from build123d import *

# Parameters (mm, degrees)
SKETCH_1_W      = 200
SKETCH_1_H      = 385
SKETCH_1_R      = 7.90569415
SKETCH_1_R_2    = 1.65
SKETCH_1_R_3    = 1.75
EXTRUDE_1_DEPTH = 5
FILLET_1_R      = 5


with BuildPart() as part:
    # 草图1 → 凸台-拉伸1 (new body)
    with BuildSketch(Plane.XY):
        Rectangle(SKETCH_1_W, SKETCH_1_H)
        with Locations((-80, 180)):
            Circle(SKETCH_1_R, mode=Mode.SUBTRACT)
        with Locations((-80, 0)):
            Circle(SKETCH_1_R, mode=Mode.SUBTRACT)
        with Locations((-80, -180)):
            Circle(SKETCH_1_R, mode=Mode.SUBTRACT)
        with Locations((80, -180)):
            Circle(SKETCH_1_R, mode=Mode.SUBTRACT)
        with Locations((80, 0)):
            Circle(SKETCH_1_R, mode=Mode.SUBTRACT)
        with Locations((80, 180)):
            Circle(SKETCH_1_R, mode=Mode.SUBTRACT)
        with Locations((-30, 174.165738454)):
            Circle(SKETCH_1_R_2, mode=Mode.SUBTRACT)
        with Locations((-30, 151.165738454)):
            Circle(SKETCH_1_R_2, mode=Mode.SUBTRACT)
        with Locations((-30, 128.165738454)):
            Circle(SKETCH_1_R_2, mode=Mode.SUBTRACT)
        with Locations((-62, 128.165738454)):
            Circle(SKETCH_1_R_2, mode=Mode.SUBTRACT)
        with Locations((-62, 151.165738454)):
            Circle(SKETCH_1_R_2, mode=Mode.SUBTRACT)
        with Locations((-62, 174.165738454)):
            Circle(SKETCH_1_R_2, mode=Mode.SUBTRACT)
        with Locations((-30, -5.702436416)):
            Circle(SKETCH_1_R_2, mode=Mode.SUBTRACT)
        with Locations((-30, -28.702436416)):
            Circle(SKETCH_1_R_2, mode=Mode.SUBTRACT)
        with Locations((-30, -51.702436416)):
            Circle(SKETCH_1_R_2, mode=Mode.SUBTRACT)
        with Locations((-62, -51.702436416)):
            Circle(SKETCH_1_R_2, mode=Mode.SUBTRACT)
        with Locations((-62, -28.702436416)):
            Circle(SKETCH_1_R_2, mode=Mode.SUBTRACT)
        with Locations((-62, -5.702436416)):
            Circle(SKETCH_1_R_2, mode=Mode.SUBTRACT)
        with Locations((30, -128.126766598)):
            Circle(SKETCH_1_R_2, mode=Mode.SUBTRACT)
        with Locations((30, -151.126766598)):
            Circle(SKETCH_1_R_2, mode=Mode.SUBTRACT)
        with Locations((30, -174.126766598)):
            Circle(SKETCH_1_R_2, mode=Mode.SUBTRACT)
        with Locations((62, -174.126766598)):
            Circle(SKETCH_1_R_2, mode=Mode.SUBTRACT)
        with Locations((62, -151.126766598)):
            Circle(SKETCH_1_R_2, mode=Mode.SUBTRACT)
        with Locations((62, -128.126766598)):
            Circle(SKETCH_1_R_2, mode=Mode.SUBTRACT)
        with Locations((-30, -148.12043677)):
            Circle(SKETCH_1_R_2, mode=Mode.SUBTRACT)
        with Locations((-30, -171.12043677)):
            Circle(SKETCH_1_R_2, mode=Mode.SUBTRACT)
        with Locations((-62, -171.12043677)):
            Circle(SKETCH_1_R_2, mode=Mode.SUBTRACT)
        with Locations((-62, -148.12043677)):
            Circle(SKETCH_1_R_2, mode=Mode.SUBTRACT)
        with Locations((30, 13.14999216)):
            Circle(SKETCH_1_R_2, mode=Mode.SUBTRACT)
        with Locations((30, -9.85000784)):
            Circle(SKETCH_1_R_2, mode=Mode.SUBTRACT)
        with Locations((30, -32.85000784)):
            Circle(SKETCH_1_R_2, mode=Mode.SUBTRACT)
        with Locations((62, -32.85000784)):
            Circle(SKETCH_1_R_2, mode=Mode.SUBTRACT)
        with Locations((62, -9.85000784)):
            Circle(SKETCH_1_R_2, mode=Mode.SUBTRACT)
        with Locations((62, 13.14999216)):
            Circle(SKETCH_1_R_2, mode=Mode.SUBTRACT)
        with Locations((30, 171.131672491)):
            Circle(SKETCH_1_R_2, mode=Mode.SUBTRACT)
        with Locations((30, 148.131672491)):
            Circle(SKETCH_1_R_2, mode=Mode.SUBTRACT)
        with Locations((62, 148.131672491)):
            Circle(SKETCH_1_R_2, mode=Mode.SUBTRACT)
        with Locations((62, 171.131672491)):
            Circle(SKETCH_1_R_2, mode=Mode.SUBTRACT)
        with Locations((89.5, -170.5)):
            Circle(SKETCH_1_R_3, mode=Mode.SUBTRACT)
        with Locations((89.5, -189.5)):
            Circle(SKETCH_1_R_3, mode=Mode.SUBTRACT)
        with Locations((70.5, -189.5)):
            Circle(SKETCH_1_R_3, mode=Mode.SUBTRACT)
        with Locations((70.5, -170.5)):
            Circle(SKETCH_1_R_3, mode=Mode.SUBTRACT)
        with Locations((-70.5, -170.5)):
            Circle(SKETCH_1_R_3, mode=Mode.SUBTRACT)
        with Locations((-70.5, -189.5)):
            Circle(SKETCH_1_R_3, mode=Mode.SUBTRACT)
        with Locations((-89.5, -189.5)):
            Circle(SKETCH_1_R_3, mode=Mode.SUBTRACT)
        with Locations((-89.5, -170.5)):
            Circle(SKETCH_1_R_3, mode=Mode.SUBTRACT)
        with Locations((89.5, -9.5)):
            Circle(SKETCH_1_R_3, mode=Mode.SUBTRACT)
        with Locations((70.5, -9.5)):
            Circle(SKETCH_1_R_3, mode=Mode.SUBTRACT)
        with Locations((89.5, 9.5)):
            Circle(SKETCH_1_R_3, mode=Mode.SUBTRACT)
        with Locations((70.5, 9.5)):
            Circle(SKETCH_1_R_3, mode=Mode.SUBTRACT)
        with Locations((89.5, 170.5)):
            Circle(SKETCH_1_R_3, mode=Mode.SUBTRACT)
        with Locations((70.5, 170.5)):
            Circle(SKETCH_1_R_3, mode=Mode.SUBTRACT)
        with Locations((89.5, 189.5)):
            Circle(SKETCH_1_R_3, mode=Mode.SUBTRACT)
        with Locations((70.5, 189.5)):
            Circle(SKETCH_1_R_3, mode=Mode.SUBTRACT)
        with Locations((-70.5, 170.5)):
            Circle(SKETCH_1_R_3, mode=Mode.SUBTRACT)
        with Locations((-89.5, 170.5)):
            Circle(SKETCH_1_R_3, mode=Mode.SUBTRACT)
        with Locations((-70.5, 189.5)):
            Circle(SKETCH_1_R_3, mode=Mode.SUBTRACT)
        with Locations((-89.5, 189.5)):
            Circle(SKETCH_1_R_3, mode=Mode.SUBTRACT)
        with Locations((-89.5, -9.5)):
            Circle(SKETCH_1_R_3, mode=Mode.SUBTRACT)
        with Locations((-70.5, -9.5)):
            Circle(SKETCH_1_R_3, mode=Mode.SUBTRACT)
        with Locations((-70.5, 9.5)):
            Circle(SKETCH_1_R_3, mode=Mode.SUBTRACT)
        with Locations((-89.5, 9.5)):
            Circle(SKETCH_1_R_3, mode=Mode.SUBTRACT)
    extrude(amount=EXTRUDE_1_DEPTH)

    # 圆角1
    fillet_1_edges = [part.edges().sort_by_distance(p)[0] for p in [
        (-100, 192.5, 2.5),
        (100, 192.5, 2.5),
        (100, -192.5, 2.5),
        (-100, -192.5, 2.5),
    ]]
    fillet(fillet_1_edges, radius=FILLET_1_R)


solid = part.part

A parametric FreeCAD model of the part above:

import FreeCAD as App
import Part
import Sketcher

V = App.Vector
Q = App.Units.Quantity


def edges_at(feature, points):
    """Names of the edges that pass closest to the given points."""
    edges = feature.Shape.Edges
    near = lambda p: min(range(len(edges)), key=lambda i: edges[i].distToShape(Part.Vertex(*p))[0])
    return sorted({f"Edge{near(p) + 1}" for p in points})


def add_polygon(sketch, points):
    """Adds a closed chain of lines whose ends are joined by coincident constraints."""
    first, n = sketch.GeometryCount, len(points)
    for a, b in zip(points, points[1:] + points[:1]):
        sketch.addGeometry(Part.LineSegment(App.Vector(*a, 0), App.Vector(*b, 0)), False)
    for i in range(n):
        sketch.addConstraint(Sketcher.Constraint("Coincident", first + i, 2, first + (i + 1) % n, 1))

doc = App.newDocument("Part")
params = doc.addObject("Spreadsheet::Sheet", "Params")
for row, (alias, value) in enumerate([
    ("sketch1_diameter", "3.5 mm"),
    ("sketch1_diameter2", "3.3 mm"),
    ("sketch1_width", "200 mm"),
    ("sketch1_height", "385 mm"),
    ("pad1_length", "5 mm"),
    ("fillet_radius", "5 mm"),
], start=1):
    params.set(f"A{row}", alias)
    params.set(f"B{row}", "=" + value)
    params.setAlias(f"B{row}", alias)

body = doc.addObject("PartDesign::Body", "Body")

# Sketch on XY plane
sketch1 = doc.addObject("Sketcher::SketchObject", "Sketch")
body.addObject(sketch1)
sketch1.AttachmentSupport = (doc.XY_Plane, [""])
sketch1.MapMode = "FlatFace"
add_polygon(sketch1, [(-100, 192.5), (-100, -192.5), (100, -192.5), (100, 192.5)])  # lines 0-3
sketch1.addGeometry(Part.Circle(V(-89.5, -189.5, 0), V(0, 0, 1), 1.8), False)  # 4
sketch1.addGeometry(Part.Circle(V(-80, -180, 0), V(0, 0, 1), 7.9), False)  # 5
sketch1.addGeometry(Part.Circle(V(-89.5, -170.5, 0), V(0, 0, 1), 1.8), False)  # 6
sketch1.addGeometry(Part.Circle(V(-70.5, -189.5, 0), V(0, 0, 1), 1.8), False)  # 7
sketch1.addGeometry(Part.Circle(V(-70.5, -170.5, 0), V(0, 0, 1), 1.8), False)  # 8
sketch1.addGeometry(Part.Circle(V(-62, -171.1, 0), V(0, 0, 1), 1.6), False)  # 9
sketch1.addGeometry(Part.Circle(V(-62, -148.1, 0), V(0, 0, 1), 1.6), False)  # 10
sketch1.addGeometry(Part.Circle(V(-30, -171.1, 0), V(0, 0, 1), 1.6), False)  # 11
sketch1.addGeometry(Part.Circle(V(-30, -148.1, 0), V(0, 0, 1), 1.6), False)  # 12
sketch1.addGeometry(Part.Circle(V(-62, -51.7, 0), V(0, 0, 1), 1.6), False)  # 13
sketch1.addGeometry(Part.Circle(V(-89.5, -9.5, 0), V(0, 0, 1), 1.8), False)  # 14
sketch1.addGeometry(Part.Circle(V(-80, 0, 0), V(0, 0, 1), 7.9), False)  # 15
sketch1.addGeometry(Part.Circle(V(-70.5, -9.5, 0), V(0, 0, 1), 1.8), False)  # 16
sketch1.addGeometry(Part.Circle(V(-62, -28.7, 0), V(0, 0, 1), 1.6), False)  # 17
sketch1.addGeometry(Part.Circle(V(-62, -5.7, 0), V(0, 0, 1), 1.6), False)  # 18
sketch1.addGeometry(Part.Circle(V(-30, -51.7, 0), V(0, 0, 1), 1.6), False)  # 19
sketch1.addGeometry(Part.Circle(V(-30, -28.7, 0), V(0, 0, 1), 1.6), False)  # 20
sketch1.addGeometry(Part.Circle(V(-30, -5.7, 0), V(0, 0, 1), 1.6), False)  # 21
sketch1.addGeometry(Part.Circle(V(30, -174.1, 0), V(0, 0, 1), 1.6), False)  # 22
sketch1.addGeometry(Part.Circle(V(30, -151.1, 0), V(0, 0, 1), 1.6), False)  # 23
sketch1.addGeometry(Part.Circle(V(30, -128.1, 0), V(0, 0, 1), 1.6), False)  # 24
sketch1.addGeometry(Part.Circle(V(62, -174.1, 0), V(0, 0, 1), 1.6), False)  # 25
sketch1.addGeometry(Part.Circle(V(62, -151.1, 0), V(0, 0, 1), 1.6), False)  # 26
sketch1.addGeometry(Part.Circle(V(70.5, -189.5, 0), V(0, 0, 1), 1.8), False)  # 27
sketch1.addGeometry(Part.Circle(V(70.5, -170.5, 0), V(0, 0, 1), 1.8), False)  # 28
sketch1.addGeometry(Part.Circle(V(80, -180, 0), V(0, 0, 1), 7.9), False)  # 29
sketch1.addGeometry(Part.Circle(V(89.5, -189.5, 0), V(0, 0, 1), 1.8), False)  # 30
sketch1.addGeometry(Part.Circle(V(89.5, -170.5, 0), V(0, 0, 1), 1.8), False)  # 31
sketch1.addGeometry(Part.Circle(V(62, -128.1, 0), V(0, 0, 1), 1.6), False)  # 32
sketch1.addGeometry(Part.Circle(V(30, -32.9, 0), V(0, 0, 1), 1.6), False)  # 33
sketch1.addGeometry(Part.Circle(V(30, -9.9, 0), V(0, 0, 1), 1.6), False)  # 34
sketch1.addGeometry(Part.Circle(V(62, -32.9, 0), V(0, 0, 1), 1.6), False)  # 35
sketch1.addGeometry(Part.Circle(V(62, -9.9, 0), V(0, 0, 1), 1.6), False)  # 36
sketch1.addGeometry(Part.Circle(V(70.5, -9.5, 0), V(0, 0, 1), 1.8), False)  # 37
sketch1.addGeometry(Part.Circle(V(80, 0, 0), V(0, 0, 1), 7.9), False)  # 38
sketch1.addGeometry(Part.Circle(V(89.5, -9.5, 0), V(0, 0, 1), 1.8), False)  # 39
sketch1.addGeometry(Part.Circle(V(-89.5, 9.5, 0), V(0, 0, 1), 1.8), False)  # 40
sketch1.addGeometry(Part.Circle(V(-70.5, 9.5, 0), V(0, 0, 1), 1.8), False)  # 41
sketch1.addGeometry(Part.Circle(V(-62, 128.2, 0), V(0, 0, 1), 1.6), False)  # 42
sketch1.addGeometry(Part.Circle(V(-89.5, 170.5, 0), V(0, 0, 1), 1.8), False)  # 43
sketch1.addGeometry(Part.Circle(V(-89.5, 189.5, 0), V(0, 0, 1), 1.8), False)  # 44
sketch1.addGeometry(Part.Circle(V(-80, 180, 0), V(0, 0, 1), 7.9), False)  # 45
sketch1.addGeometry(Part.Circle(V(-70.5, 170.5, 0), V(0, 0, 1), 1.8), False)  # 46
sketch1.addGeometry(Part.Circle(V(-70.5, 189.5, 0), V(0, 0, 1), 1.8), False)  # 47
sketch1.addGeometry(Part.Circle(V(-62, 151.2, 0), V(0, 0, 1), 1.6), False)  # 48
sketch1.addGeometry(Part.Circle(V(-62, 174.2, 0), V(0, 0, 1), 1.6), False)  # 49
sketch1.addGeometry(Part.Circle(V(-30, 128.2, 0), V(0, 0, 1), 1.6), False)  # 50
sketch1.addGeometry(Part.Circle(V(-30, 151.2, 0), V(0, 0, 1), 1.6), False)  # 51
sketch1.addGeometry(Part.Circle(V(-30, 174.2, 0), V(0, 0, 1), 1.6), False)  # 52
sketch1.addGeometry(Part.Circle(V(30, 13.1, 0), V(0, 0, 1), 1.6), False)  # 53
sketch1.addGeometry(Part.Circle(V(62, 13.1, 0), V(0, 0, 1), 1.6), False)  # 54
sketch1.addGeometry(Part.Circle(V(70.5, 9.5, 0), V(0, 0, 1), 1.8), False)  # 55
sketch1.addGeometry(Part.Circle(V(89.5, 9.5, 0), V(0, 0, 1), 1.8), False)  # 56
sketch1.addGeometry(Part.Circle(V(30, 148.1, 0), V(0, 0, 1), 1.6), False)  # 57
sketch1.addGeometry(Part.Circle(V(30, 171.1, 0), V(0, 0, 1), 1.6), False)  # 58
sketch1.addGeometry(Part.Circle(V(62, 148.1, 0), V(0, 0, 1), 1.6), False)  # 59
sketch1.addGeometry(Part.Circle(V(62, 171.1, 0), V(0, 0, 1), 1.6), False)  # 60
sketch1.addGeometry(Part.Circle(V(70.5, 170.5, 0), V(0, 0, 1), 1.8), False)  # 61
sketch1.addGeometry(Part.Circle(V(70.5, 189.5, 0), V(0, 0, 1), 1.8), False)  # 62
sketch1.addGeometry(Part.Circle(V(89.5, 170.5, 0), V(0, 0, 1), 1.8), False)  # 63
sketch1.addGeometry(Part.Circle(V(80, 180, 0), V(0, 0, 1), 7.9), False)  # 64
sketch1.addGeometry(Part.Circle(V(89.5, 189.5, 0), V(0, 0, 1), 1.8), False)  # 65
sketch1.addConstraint(Sketcher.Constraint("Vertical", 0))
sketch1.addConstraint(Sketcher.Constraint("Horizontal", 1))
sketch1.addConstraint(Sketcher.Constraint("Vertical", 2))
sketch1.addConstraint(Sketcher.Constraint("Horizontal", 3))
sketch1.addConstraint(Sketcher.Constraint("Equal", 4, 6))
sketch1.addConstraint(Sketcher.Constraint("Equal", 6, 7))
sketch1.addConstraint(Sketcher.Constraint("Equal", 7, 8))
sketch1.addConstraint(Sketcher.Constraint("Equal", 9, 10))
sketch1.addConstraint(Sketcher.Constraint("Equal", 10, 11))
sketch1.addConstraint(Sketcher.Constraint("Equal", 11, 12))
sketch1.addConstraint(Sketcher.Constraint("Equal", 12, 13))
sketch1.addConstraint(Sketcher.Constraint("Equal", 8, 14))
sketch1.addConstraint(Sketcher.Constraint("Equal", 5, 15))
sketch1.addConstraint(Sketcher.Constraint("Equal", 14, 16))
sketch1.addConstraint(Sketcher.Constraint("Equal", 13, 17))
sketch1.addConstraint(Sketcher.Constraint("Equal", 17, 18))
sketch1.addConstraint(Sketcher.Constraint("Equal", 18, 19))
sketch1.addConstraint(Sketcher.Constraint("Equal", 19, 20))
sketch1.addConstraint(Sketcher.Constraint("Equal", 20, 21))
sketch1.addConstraint(Sketcher.Constraint("Equal", 21, 22))
sketch1.addConstraint(Sketcher.Constraint("Equal", 22, 23))
sketch1.addConstraint(Sketcher.Constraint("Equal", 23, 24))
sketch1.addConstraint(Sketcher.Constraint("Equal", 24, 25))
sketch1.addConstraint(Sketcher.Constraint("Equal", 25, 26))
sketch1.addConstraint(Sketcher.Constraint("Equal", 16, 27))
sketch1.addConstraint(Sketcher.Constraint("Equal", 27, 28))
sketch1.addConstraint(Sketcher.Constraint("Equal", 15, 29))
sketch1.addConstraint(Sketcher.Constraint("Equal", 28, 30))
sketch1.addConstraint(Sketcher.Constraint("Equal", 30, 31))
sketch1.addConstraint(Sketcher.Constraint("Equal", 26, 32))
sketch1.addConstraint(Sketcher.Constraint("Equal", 32, 33))
sketch1.addConstraint(Sketcher.Constraint("Equal", 33, 34))
sketch1.addConstraint(Sketcher.Constraint("Equal", 34, 35))
sketch1.addConstraint(Sketcher.Constraint("Equal", 35, 36))
sketch1.addConstraint(Sketcher.Constraint("Equal", 31, 37))
sketch1.addConstraint(Sketcher.Constraint("Equal", 29, 38))
sketch1.addConstraint(Sketcher.Constraint("Equal", 37, 39))
sketch1.addConstraint(Sketcher.Constraint("Equal", 39, 40))
sketch1.addConstraint(Sketcher.Constraint("Equal", 40, 41))
sketch1.addConstraint(Sketcher.Constraint("Equal", 36, 42))
sketch1.addConstraint(Sketcher.Constraint("Equal", 41, 43))
sketch1.addConstraint(Sketcher.Constraint("Equal", 43, 44))
sketch1.addConstraint(Sketcher.Constraint("Equal", 38, 45))
sketch1.addConstraint(Sketcher.Constraint("Equal", 44, 46))
sketch1.addConstraint(Sketcher.Constraint("Equal", 46, 47))
sketch1.addConstraint(Sketcher.Constraint("Equal", 42, 48))
sketch1.addConstraint(Sketcher.Constraint("Equal", 48, 49))
sketch1.addConstraint(Sketcher.Constraint("Equal", 49, 50))
sketch1.addConstraint(Sketcher.Constraint("Equal", 50, 51))
sketch1.addConstraint(Sketcher.Constraint("Equal", 51, 52))
sketch1.addConstraint(Sketcher.Constraint("Equal", 52, 53))
sketch1.addConstraint(Sketcher.Constraint("Equal", 53, 54))
sketch1.addConstraint(Sketcher.Constraint("Equal", 47, 55))
sketch1.addConstraint(Sketcher.Constraint("Equal", 55, 56))
sketch1.addConstraint(Sketcher.Constraint("Equal", 54, 57))
sketch1.addConstraint(Sketcher.Constraint("Equal", 57, 58))
sketch1.addConstraint(Sketcher.Constraint("Equal", 58, 59))
sketch1.addConstraint(Sketcher.Constraint("Equal", 59, 60))
sketch1.addConstraint(Sketcher.Constraint("Equal", 56, 61))
sketch1.addConstraint(Sketcher.Constraint("Equal", 61, 62))
sketch1.addConstraint(Sketcher.Constraint("Equal", 62, 63))
sketch1.addConstraint(Sketcher.Constraint("Equal", 45, 64))
sketch1.addConstraint(Sketcher.Constraint("Equal", 63, 65))
sketch1.addConstraint(Sketcher.Constraint("Symmetric", 15, 3, 38, 3, -1, 1))
sketch1.addConstraint(Sketcher.Constraint("Symmetric", 39, 3, 40, 3, -1, 1))
sketch1.addConstraint(Sketcher.Constraint("Symmetric", 37, 3, 41, 3, -1, 1))
sketch1.addConstraint(Sketcher.Constraint("Symmetric", 31, 3, 43, 3, -1, 1))
sketch1.addConstraint(Sketcher.Constraint("Symmetric", 30, 3, 44, 3, -1, 1))
sketch1.addConstraint(Sketcher.Constraint("Symmetric", 29, 3, 45, 3, -1, 1))
sketch1.addConstraint(Sketcher.Constraint("Symmetric", 28, 3, 46, 3, -1, 1))
sketch1.addConstraint(Sketcher.Constraint("Symmetric", 27, 3, 47, 3, -1, 1))
sketch1.addConstraint(Sketcher.Constraint("Symmetric", 16, 3, 55, 3, -1, 1))
sketch1.addConstraint(Sketcher.Constraint("Symmetric", 14, 3, 56, 3, -1, 1))
sketch1.addConstraint(Sketcher.Constraint("Symmetric", 8, 3, 61, 3, -1, 1))
sketch1.addConstraint(Sketcher.Constraint("Symmetric", 7, 3, 62, 3, -1, 1))
sketch1.addConstraint(Sketcher.Constraint("Symmetric", 6, 3, 63, 3, -1, 1))
sketch1.addConstraint(Sketcher.Constraint("Symmetric", 5, 3, 64, 3, -1, 1))
sketch1.addConstraint(Sketcher.Constraint("Symmetric", 4, 3, 65, 3, -1, 1))
sketch1.addConstraint(Sketcher.Constraint("Symmetric", 0, 2, 2, 2, -1, 1))
sketch1.addConstraint(Sketcher.Constraint("Symmetric", 7, 3, 27, 3, -2))
sketch1.addConstraint(Sketcher.Constraint("Symmetric", 8, 3, 28, 3, -2))
sketch1.addConstraint(Sketcher.Constraint("Symmetric", 5, 3, 29, 3, -2))
sketch1.addConstraint(Sketcher.Constraint("Symmetric", 4, 3, 30, 3, -2))
sketch1.addConstraint(Sketcher.Constraint("Symmetric", 6, 3, 31, 3, -2))
sketch1.addConstraint(Sketcher.Constraint("Symmetric", 16, 3, 37, 3, -2))
sketch1.addConstraint(Sketcher.Constraint("Symmetric", 14, 3, 39, 3, -2))
sketch1.addConstraint(Sketcher.Constraint("PointOnObject", 15, 3, -1))
sketch1.addConstraint(Sketcher.Constraint("Horizontal", 4, 3, 7, 3))
sketch1.addConstraint(Sketcher.Constraint("Horizontal", 6, 3, 8, 3))
sketch1.addConstraint(Sketcher.Constraint("Horizontal", 9, 3, 11, 3))
sketch1.addConstraint(Sketcher.Constraint("Horizontal", 10, 3, 12, 3))
sketch1.addConstraint(Sketcher.Constraint("Horizontal", 14, 3, 16, 3))
sketch1.addConstraint(Sketcher.Constraint("Horizontal", 13, 3, 19, 3))
sketch1.addConstraint(Sketcher.Constraint("Horizontal", 17, 3, 20, 3))
sketch1.addConstraint(Sketcher.Constraint("Horizontal", 18, 3, 21, 3))
sketch1.addConstraint(Sketcher.Constraint("Horizontal", 22, 3, 25, 3))
sketch1.addConstraint(Sketcher.Constraint("Horizontal", 23, 3, 26, 3))
sketch1.addConstraint(Sketcher.Constraint("Horizontal", 24, 3, 32, 3))
sketch1.addConstraint(Sketcher.Constraint("Horizontal", 33, 3, 35, 3))
sketch1.addConstraint(Sketcher.Constraint("Horizontal", 34, 3, 36, 3))
sketch1.addConstraint(Sketcher.Constraint("Horizontal", 42, 3, 50, 3))
sketch1.addConstraint(Sketcher.Constraint("Horizontal", 48, 3, 51, 3))
sketch1.addConstraint(Sketcher.Constraint("Horizontal", 49, 3, 52, 3))
sketch1.addConstraint(Sketcher.Constraint("Horizontal", 53, 3, 54, 3))
sketch1.addConstraint(Sketcher.Constraint("Horizontal", 57, 3, 59, 3))
sketch1.addConstraint(Sketcher.Constraint("Horizontal", 58, 3, 60, 3))
sketch1.addConstraint(Sketcher.Constraint("Vertical", 4, 3, 6, 3))
sketch1.addConstraint(Sketcher.Constraint("Vertical", 7, 3, 8, 3))
sketch1.addConstraint(Sketcher.Constraint("Vertical", 9, 3, 10, 3))
sketch1.addConstraint(Sketcher.Constraint("Vertical", 11, 3, 12, 3))
sketch1.addConstraint(Sketcher.Constraint("Vertical", 10, 3, 13, 3))
sketch1.addConstraint(Sketcher.Constraint("Vertical", 6, 3, 14, 3))
sketch1.addConstraint(Sketcher.Constraint("Vertical", 5, 3, 15, 3))
sketch1.addConstraint(Sketcher.Constraint("Vertical", 8, 3, 16, 3))
sketch1.addConstraint(Sketcher.Constraint("Vertical", 13, 3, 17, 3))
sketch1.addConstraint(Sketcher.Constraint("Vertical", 17, 3, 18, 3))
sketch1.addConstraint(Sketcher.Constraint("Vertical", 12, 3, 19, 3))
sketch1.addConstraint(Sketcher.Constraint("Vertical", 19, 3, 20, 3))
sketch1.addConstraint(Sketcher.Constraint("Vertical", 20, 3, 21, 3))
sketch1.addConstraint(Sketcher.Constraint("Vertical", 22, 3, 23, 3))
sketch1.addConstraint(Sketcher.Constraint("Vertical", 23, 3, 24, 3))
sketch1.addConstraint(Sketcher.Constraint("Vertical", 25, 3, 26, 3))
sketch1.addConstraint(Sketcher.Constraint("Vertical", 26, 3, 32, 3))
sketch1.addConstraint(Sketcher.Constraint("Vertical", 24, 3, 33, 3))
sketch1.addConstraint(Sketcher.Constraint("Vertical", 33, 3, 34, 3))
sketch1.addConstraint(Sketcher.Constraint("Vertical", 32, 3, 35, 3))
sketch1.addConstraint(Sketcher.Constraint("Vertical", 35, 3, 36, 3))
sketch1.addConstraint(Sketcher.Constraint("Vertical", 18, 3, 42, 3))
sketch1.addConstraint(Sketcher.Constraint("Vertical", 42, 3, 48, 3))
sketch1.addConstraint(Sketcher.Constraint("Vertical", 48, 3, 49, 3))
sketch1.addConstraint(Sketcher.Constraint("Vertical", 21, 3, 50, 3))
sketch1.addConstraint(Sketcher.Constraint("Vertical", 50, 3, 51, 3))
sketch1.addConstraint(Sketcher.Constraint("Vertical", 51, 3, 52, 3))
sketch1.addConstraint(Sketcher.Constraint("Vertical", 34, 3, 53, 3))
sketch1.addConstraint(Sketcher.Constraint("Vertical", 36, 3, 54, 3))
sketch1.addConstraint(Sketcher.Constraint("Vertical", 53, 3, 57, 3))
sketch1.addConstraint(Sketcher.Constraint("Vertical", 57, 3, 58, 3))
sketch1.addConstraint(Sketcher.Constraint("Vertical", 54, 3, 59, 3))
sketch1.addConstraint(Sketcher.Constraint("Vertical", 59, 3, 60, 3))
sketch1.addConstraint(Sketcher.Constraint("Diameter", 4, Q("3.5 mm")))
sketch1.addConstraint(Sketcher.Constraint("Diameter", 9, Q("3.3 mm")))
sketch1.addConstraint(Sketcher.Constraint("DistanceX", 1, 1, 1, 2, Q("200 mm")))
sketch1.addConstraint(Sketcher.Constraint("DistanceY", 0, 2, 0, 1, Q("385 mm")))
sketch1.addConstraint(Sketcher.Constraint("DistanceX", 5, 3, -1, 1, Q("80 mm")))
sketch1.addConstraint(Sketcher.Constraint("DistanceY", 5, 3, -1, 1, Q("180 mm")))
sketch1.addConstraint(Sketcher.Constraint("DistanceX", 9, 3, -1, 1, Q("62 mm")))
sketch1.addConstraint(Sketcher.Constraint("DistanceX", 11, 3, -1, 1, Q("30 mm")))
sketch1.addConstraint(Sketcher.Constraint("DistanceX", -1, 1, 22, 3, Q("30 mm")))
sketch1.addConstraint(Sketcher.Constraint("DistanceX", -1, 1, 25, 3, Q("62 mm")))
sketch1.addConstraint(Sketcher.Constraint("DistanceX", 4, 3, -1, 1, Q("89.5 mm")))
sketch1.addConstraint(Sketcher.Constraint("DistanceY", 4, 3, -1, 1, Q("189.5 mm")))
sketch1.addConstraint(Sketcher.Constraint("DistanceY", 6, 3, -1, 1, Q("170.5 mm")))
sketch1.addConstraint(Sketcher.Constraint("DistanceX", 7, 3, -1, 1, Q("70.5 mm")))
sketch1.addConstraint(Sketcher.Constraint("DistanceY", 14, 3, -1, 1, Q("9.5 mm")))
sketch1.addConstraint(Sketcher.Constraint("Diameter", 5, Q("15.811388 mm")))
sketch1.addConstraint(Sketcher.Constraint("DistanceY", -1, 1, 42, 3, Q("128.165738 mm")))
sketch1.addConstraint(Sketcher.Constraint("DistanceY", -1, 1, 48, 3, Q("151.165738 mm")))
sketch1.addConstraint(Sketcher.Constraint("DistanceY", -1, 1, 49, 3, Q("174.165738 mm")))
sketch1.addConstraint(Sketcher.Constraint("DistanceY", 9, 3, -1, 1, Q("171.120437 mm")))
sketch1.addConstraint(Sketcher.Constraint("DistanceY", 10, 3, -1, 1, Q("148.120437 mm")))
sketch1.addConstraint(Sketcher.Constraint("DistanceY", 13, 3, -1, 1, Q("51.702436 mm")))
sketch1.addConstraint(Sketcher.Constraint("DistanceY", 17, 3, -1, 1, Q("28.702436 mm")))
sketch1.addConstraint(Sketcher.Constraint("DistanceY", 18, 3, -1, 1, Q("5.702436 mm")))
sketch1.addConstraint(Sketcher.Constraint("DistanceY", 22, 3, -1, 1, Q("174.126767 mm")))
sketch1.addConstraint(Sketcher.Constraint("DistanceY", 23, 3, -1, 1, Q("151.126767 mm")))
sketch1.addConstraint(Sketcher.Constraint("DistanceY", 24, 3, -1, 1, Q("128.126767 mm")))
sketch1.addConstraint(Sketcher.Constraint("DistanceY", 33, 3, -1, 1, Q("32.850008 mm")))
sketch1.addConstraint(Sketcher.Constraint("DistanceY", 34, 3, -1, 1, Q("9.850008 mm")))
sketch1.addConstraint(Sketcher.Constraint("DistanceY", -1, 1, 53, 3, Q("13.149992 mm")))
sketch1.addConstraint(Sketcher.Constraint("DistanceY", -1, 1, 57, 3, Q("148.131672 mm")))
sketch1.addConstraint(Sketcher.Constraint("DistanceY", -1, 1, 58, 3, Q("171.131672 mm")))
sketch1.setExpression("Constraints[143]", "Params.sketch1_diameter")
sketch1.setExpression("Constraints[144]", "Params.sketch1_diameter2")
sketch1.setExpression("Constraints[145]", "Params.sketch1_width")
sketch1.setExpression("Constraints[146]", "Params.sketch1_height")
pad1 = doc.addObject("PartDesign::Pad", "Pad")
body.addObject(pad1)
pad1.Profile = sketch1
pad1.setExpression("Length", "Params.pad1_length")
doc.recompute()

fillet = doc.addObject("PartDesign::Fillet", "Fillet")
body.addObject(fillet)
fillet.Base = (pad1, edges_at(pad1, [
    (-100, 192.5, 2.5),
    (100, 192.5, 2.5),
    (100, -192.5, 2.5),
    (-100, -192.5, 2.5),
]))
fillet.setExpression("Radius", "Params.fillet_radius")

doc.recompute()
